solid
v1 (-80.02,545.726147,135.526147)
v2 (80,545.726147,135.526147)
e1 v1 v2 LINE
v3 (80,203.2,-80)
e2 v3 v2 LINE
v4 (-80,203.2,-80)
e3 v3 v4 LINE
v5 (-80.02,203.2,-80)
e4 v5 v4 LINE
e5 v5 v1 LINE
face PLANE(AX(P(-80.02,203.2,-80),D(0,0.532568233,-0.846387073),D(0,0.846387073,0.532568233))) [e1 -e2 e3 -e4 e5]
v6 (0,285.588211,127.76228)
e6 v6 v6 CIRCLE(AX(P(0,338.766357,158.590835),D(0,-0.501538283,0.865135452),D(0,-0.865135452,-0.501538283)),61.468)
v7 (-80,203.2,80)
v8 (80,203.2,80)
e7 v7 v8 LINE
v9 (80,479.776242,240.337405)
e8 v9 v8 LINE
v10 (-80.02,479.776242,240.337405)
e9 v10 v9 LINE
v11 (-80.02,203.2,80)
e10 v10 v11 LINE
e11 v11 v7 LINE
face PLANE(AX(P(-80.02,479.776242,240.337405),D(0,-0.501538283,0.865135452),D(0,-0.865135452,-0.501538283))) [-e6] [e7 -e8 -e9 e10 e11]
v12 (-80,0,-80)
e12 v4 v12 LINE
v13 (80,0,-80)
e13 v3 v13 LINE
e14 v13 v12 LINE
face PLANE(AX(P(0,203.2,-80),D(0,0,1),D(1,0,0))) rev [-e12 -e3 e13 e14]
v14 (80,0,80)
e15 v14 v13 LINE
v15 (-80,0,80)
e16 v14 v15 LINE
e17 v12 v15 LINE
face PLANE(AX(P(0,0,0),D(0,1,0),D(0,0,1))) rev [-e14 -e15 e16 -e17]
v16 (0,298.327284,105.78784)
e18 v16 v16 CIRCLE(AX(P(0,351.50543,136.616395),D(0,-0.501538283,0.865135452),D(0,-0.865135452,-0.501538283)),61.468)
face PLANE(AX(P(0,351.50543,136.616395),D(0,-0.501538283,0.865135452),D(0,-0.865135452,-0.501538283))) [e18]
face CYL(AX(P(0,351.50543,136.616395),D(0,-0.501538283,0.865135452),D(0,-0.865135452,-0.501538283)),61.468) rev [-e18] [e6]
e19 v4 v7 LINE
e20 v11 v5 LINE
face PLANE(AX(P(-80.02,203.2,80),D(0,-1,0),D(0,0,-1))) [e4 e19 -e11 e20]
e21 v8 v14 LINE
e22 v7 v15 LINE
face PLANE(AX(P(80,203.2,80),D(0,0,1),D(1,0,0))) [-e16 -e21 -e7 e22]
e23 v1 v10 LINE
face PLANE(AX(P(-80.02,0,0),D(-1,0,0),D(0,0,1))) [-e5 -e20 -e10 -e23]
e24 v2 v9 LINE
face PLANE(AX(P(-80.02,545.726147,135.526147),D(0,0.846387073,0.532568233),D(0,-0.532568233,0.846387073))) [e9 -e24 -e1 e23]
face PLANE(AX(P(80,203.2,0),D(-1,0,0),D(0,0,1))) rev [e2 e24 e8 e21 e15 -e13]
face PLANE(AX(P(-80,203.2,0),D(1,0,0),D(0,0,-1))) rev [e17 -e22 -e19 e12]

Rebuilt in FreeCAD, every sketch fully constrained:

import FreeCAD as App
import Part
import Sketcher
from FreeCAD import Vector
Q = App.Units.Quantity


def add_polygon(sketch, points):
    """Adds a closed chain of lines whose ends are joined by coincident constraints."""
    first, n = sketch.GeometryCount, len(points)
    for a, b in zip(points, points[1:] + points[:1]):
        sketch.addGeometry(Part.LineSegment(App.Vector(*a, 0), App.Vector(*b, 0)), False)
    for i in range(n):
        sketch.addConstraint(Sketcher.Constraint("Coincident", first + i, 2, first + (i + 1) % n, 1))

doc = App.newDocument("Part")
params = doc.addObject("Spreadsheet::Sheet", "Params")
for row, (alias, value) in enumerate([
    ("pad1_length", "8 in"),
    ("pad2_length", "6.3 in"),
    ("sketch3_diameter", "4.84 in"),
    ("pocket1_length", "1 in"),
], start=1):
    params.set(f"A{row}", alias)
    params.set(f"B{row}", "=" + value)
    params.setAlias(f"B{row}", alias)

body = doc.addObject("PartDesign::Body", "Body")

sketch1 = body.newObject("Sketcher::SketchObject", "Sketch")
sketch1.AttachmentSupport = (doc.getObject("XZ_Plane"), [""])
sketch1.MapMode = "FlatFace"
add_polygon(sketch1, [(-80, -80), (-80, 80), (80, 80), (80, -80)])
sketch1.addConstraint([
    Sketcher.Constraint("Vertical", 0),
    Sketcher.Constraint("Horizontal", 1),
    Sketcher.Constraint("Vertical", 2),
    Sketcher.Constraint("Horizontal", 3),
    Sketcher.Constraint("Symmetric", 0, 2, 2, 2, -1, 1),
    Sketcher.Constraint("Equal", 3, 0),
    Sketcher.Constraint("DistanceX", 1, 1, 1, 2, 160.0),
])
pad1 = body.newObject("PartDesign::Pad", "Pad")
pad1.Profile = sketch1
pad1.setExpression("Length", "Params.pad1_length")
pad1.Reversed = True

sketch2 = body.newObject("Sketcher::SketchObject", "Sketch001")
sketch2.AttachmentSupport = (doc.getObject("YZ_Plane"), [""])
sketch2.MapMode = "FlatFace"
sketch2.AttachmentOffset = App.Placement(Vector(0, 0, 80), App.Rotation())
add_polygon(sketch2, [(203, -80), (546, 136), (480, 240), (203, 80)])
sketch2.addConstraint([
    Sketcher.Constraint("Vertical", 3),
    Sketcher.Constraint("Perpendicular", 0, 1),
    Sketcher.Constraint("DistanceX", -1, 1, 2, 2, Q("8 in")),
    Sketcher.Constraint("DistanceY", 3, 2, 3, 1, 160.0),
    Sketcher.Constraint("DistanceY", -1, 1, 2, 2, 80.0),
    Sketcher.Constraint("Distance", 1, 123.833718),
    Sketcher.Constraint("Distance", 2, 319.69126),
    Sketcher.Constraint("DistanceY", 0, 2, 1, 2, 104.811258),
])
pad2 = body.newObject("PartDesign::Pad", "Pad001")
pad2.Profile = sketch2
pad2.setExpression("Length", "Params.pad2_length")
pad2.Reversed = True

sketch3 = body.newObject("Sketcher::SketchObject", "Sketch002")
sketch3.Placement = App.Placement(Vector(0, 16.401176, -28.291437), App.Rotation(Vector(1, 0, 0), Vector(0, 0.865135452, 0.501538283), Vector(0, -0.501538283, 0.865135452), "ZXY"))
sketch3.addGeometry(Part.Circle(Vector(0, 373, 0), Vector(0, 0, 1), 61), False)
sketch3.addConstraint([
    Sketcher.Constraint("PointOnObject", 0, 3, -2),
    Sketcher.Constraint("Diameter", 0, Q("4.84 in")),
    Sketcher.Constraint("DistanceY", -1, 1, 0, 3, 372.618161),
])
sketch3.setExpression("Constraints[1]", "Params.sketch3_diameter")
pocket1 = body.newObject("PartDesign::Pocket", "Pocket")
pocket1.Profile = sketch3
pocket1.setExpression("Length", "Params.pocket1_length")

doc.recompute()
